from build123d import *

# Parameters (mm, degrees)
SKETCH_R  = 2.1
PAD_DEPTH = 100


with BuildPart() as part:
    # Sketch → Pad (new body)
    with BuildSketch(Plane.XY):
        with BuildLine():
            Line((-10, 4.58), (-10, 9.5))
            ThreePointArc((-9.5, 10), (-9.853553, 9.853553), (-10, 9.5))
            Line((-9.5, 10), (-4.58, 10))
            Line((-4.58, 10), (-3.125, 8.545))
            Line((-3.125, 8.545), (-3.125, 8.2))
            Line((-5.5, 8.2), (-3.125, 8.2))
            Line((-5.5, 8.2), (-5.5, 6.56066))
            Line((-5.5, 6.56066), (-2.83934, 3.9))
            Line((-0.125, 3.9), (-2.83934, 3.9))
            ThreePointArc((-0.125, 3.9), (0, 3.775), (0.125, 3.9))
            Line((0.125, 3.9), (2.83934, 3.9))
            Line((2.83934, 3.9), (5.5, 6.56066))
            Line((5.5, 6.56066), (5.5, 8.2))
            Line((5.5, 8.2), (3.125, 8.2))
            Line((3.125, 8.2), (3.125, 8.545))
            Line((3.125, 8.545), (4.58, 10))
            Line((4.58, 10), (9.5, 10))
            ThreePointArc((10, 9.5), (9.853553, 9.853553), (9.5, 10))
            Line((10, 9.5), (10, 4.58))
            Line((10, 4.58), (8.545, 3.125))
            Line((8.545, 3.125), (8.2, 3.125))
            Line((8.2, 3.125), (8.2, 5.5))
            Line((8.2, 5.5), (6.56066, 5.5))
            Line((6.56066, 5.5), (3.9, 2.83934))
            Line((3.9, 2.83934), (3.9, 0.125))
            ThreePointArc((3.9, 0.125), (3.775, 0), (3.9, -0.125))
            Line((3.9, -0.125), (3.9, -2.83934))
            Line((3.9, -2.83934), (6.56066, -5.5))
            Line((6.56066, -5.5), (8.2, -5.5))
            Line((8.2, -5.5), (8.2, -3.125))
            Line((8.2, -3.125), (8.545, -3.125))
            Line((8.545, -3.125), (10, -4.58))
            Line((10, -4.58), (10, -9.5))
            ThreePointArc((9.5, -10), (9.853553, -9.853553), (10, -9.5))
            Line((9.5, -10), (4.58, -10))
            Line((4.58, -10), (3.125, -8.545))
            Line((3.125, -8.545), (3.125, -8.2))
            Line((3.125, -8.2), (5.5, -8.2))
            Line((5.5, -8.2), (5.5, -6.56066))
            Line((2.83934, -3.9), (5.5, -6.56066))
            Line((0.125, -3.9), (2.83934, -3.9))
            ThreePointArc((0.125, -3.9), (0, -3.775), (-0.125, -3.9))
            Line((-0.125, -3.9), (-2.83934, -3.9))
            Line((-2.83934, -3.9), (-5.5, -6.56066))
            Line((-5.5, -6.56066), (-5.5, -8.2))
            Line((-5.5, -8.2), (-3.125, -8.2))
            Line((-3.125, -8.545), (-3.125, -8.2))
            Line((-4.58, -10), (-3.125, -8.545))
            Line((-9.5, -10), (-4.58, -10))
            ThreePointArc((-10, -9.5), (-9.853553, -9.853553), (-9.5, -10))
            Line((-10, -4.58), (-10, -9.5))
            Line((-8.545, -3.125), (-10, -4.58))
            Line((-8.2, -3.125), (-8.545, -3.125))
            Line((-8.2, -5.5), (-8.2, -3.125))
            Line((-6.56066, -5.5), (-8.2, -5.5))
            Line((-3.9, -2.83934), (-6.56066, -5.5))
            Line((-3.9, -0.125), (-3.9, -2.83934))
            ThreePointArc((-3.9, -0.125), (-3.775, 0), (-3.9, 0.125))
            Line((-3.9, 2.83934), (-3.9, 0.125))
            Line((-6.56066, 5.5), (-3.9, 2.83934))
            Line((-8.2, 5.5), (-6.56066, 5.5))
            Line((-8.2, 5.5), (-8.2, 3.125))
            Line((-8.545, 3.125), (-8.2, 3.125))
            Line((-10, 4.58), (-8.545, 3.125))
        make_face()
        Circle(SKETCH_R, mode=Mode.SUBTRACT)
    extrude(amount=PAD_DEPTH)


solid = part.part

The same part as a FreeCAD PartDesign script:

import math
import FreeCAD as App
import Part
import Sketcher

V = App.Vector

doc = App.newDocument("Part")
params = doc.addObject("Spreadsheet::Sheet", "Params")
for row, (alias, value) in enumerate([
    ("sketch1_diameter", "4.2 mm"),
    ("sketch1_radius", "0.500001 mm"),
    ("sketch1_width", "4.92 mm"),
    ("pad1_length", "100 mm"),
], start=1):
    params.set(f"A{row}", alias)
    params.set(f"B{row}", "=" + value)
    params.setAlias(f"B{row}", alias)

body = doc.addObject("PartDesign::Body", "Body")

# Sketch on XY plane
sketch1 = body.newObject("Sketcher::SketchObject", "Sketch")
sketch1.AttachmentSupport = (doc.getObject("XY_Plane"), [""])
sketch1.MapMode = "FlatFace"
sketch1.addGeometry([
    Part.LineSegment(V(-10, 9.5, 0), V(-10, 4.58, 0)),  # 0
    Part.LineSegment(V(-10, 4.58, 0), V(-8.545, 3.125, 0)),  # 1
    Part.LineSegment(V(-8.545, 3.125, 0), V(-8.2, 3.125, 0)),  # 2
    Part.LineSegment(V(-8.2, 3.125, 0), V(-8.2, 5.5, 0)),  # 3
    Part.LineSegment(V(-8.2, 5.5, 0), V(-6.56066, 5.5, 0)),  # 4
    Part.LineSegment(V(-6.56066, 5.5, 0), V(-3.9, 2.83934, 0)),  # 5
    Part.LineSegment(V(-3.9, 2.83934, 0), V(-3.9, 0.125, 0)),  # 6
    Part.ArcOfCircle(Part.Circle(V(-3.9, 0, 0), V(0, 0, 1), 0.125), math.radians(-90), math.radians(90)),  # 7
    Part.LineSegment(V(-3.9, -0.125, 0), V(-3.9, -2.83934, 0)),  # 8
    Part.LineSegment(V(-3.9, -2.83934, 0), V(-6.56066, -5.5, 0)),  # 9
    Part.LineSegment(V(-6.56066, -5.5, 0), V(-8.2, -5.5, 0)),  # 10
    Part.LineSegment(V(-8.2, -5.5, 0), V(-8.2, -3.125, 0)),  # 11
    Part.LineSegment(V(-8.2, -3.125, 0), V(-8.545, -3.125, 0)),  # 12
    Part.LineSegment(V(-8.545, -3.125, 0), V(-10, -4.58, 0)),  # 13
    Part.LineSegment(V(-10, -4.58, 0), V(-10, -9.5, 0)),  # 14
    Part.ArcOfCircle(Part.Circle(V(-9.499999, -9.499999, 0), V(0, 0, 1), 0.500001), math.radians(-179.999847), math.radians(-90.000153)),  # 15
    Part.LineSegment(V(-9.5, -10, 0), V(-4.58, -10, 0)),  # 16
    Part.LineSegment(V(-4.58, -10, 0), V(-3.125, -8.545, 0)),  # 17
    Part.LineSegment(V(-3.125, -8.545, 0), V(-3.125, -8.2, 0)),  # 18
    Part.LineSegment(V(-3.125, -8.2, 0), V(-5.5, -8.2, 0)),  # 19
    Part.LineSegment(V(-5.5, -8.2, 0), V(-5.5, -6.56066, 0)),  # 20
    Part.LineSegment(V(-5.5, -6.56066, 0), V(-2.83934, -3.9, 0)),  # 21
    Part.LineSegment(V(-2.83934, -3.9, 0), V(-0.125, -3.9, 0)),  # 22
    Part.ArcOfCircle(Part.Circle(V(0, -3.9, 0), V(0, 0, 1), 0.125), math.radians(0), math.radians(180)),  # 23
    Part.LineSegment(V(0.125, -3.9, 0), V(2.83934, -3.9, 0)),  # 24
    Part.LineSegment(V(2.83934, -3.9, 0), V(5.5, -6.56066, 0)),  # 25
    Part.LineSegment(V(5.5, -6.56066, 0), V(5.5, -8.2, 0)),  # 26
    Part.LineSegment(V(5.5, -8.2, 0), V(3.125, -8.2, 0)),  # 27
    Part.LineSegment(V(3.125, -8.2, 0), V(3.125, -8.545, 0)),  # 28
    Part.LineSegment(V(3.125, -8.545, 0), V(4.58, -10, 0)),  # 29
    Part.LineSegment(V(4.58, -10, 0), V(9.5, -10, 0)),  # 30
    Part.ArcOfCircle(Part.Circle(V(9.499999, -9.499999, 0), V(0, 0, 1), 0.500001), math.radians(-89.999847), math.radians(-0.000153)),  # 31
    Part.LineSegment(V(10, -9.5, 0), V(10, -4.58, 0)),  # 32
    Part.LineSegment(V(10, -4.58, 0), V(8.545, -3.125, 0)),  # 33
    Part.LineSegment(V(8.545, -3.125, 0), V(8.2, -3.125, 0)),  # 34
    Part.LineSegment(V(8.2, -3.125, 0), V(8.2, -5.5, 0)),  # 35
    Part.LineSegment(V(8.2, -5.5, 0), V(6.56066, -5.5, 0)),  # 36
    Part.LineSegment(V(6.56066, -5.5, 0), V(3.9, -2.83934, 0)),  # 37
    Part.LineSegment(V(3.9, -2.83934, 0), V(3.9, -0.125, 0)),  # 38
    Part.ArcOfCircle(Part.Circle(V(3.9, 0, 0), V(0, 0, 1), 0.125), math.radians(90), math.radians(270)),  # 39
    Part.LineSegment(V(3.9, 0.125, 0), V(3.9, 2.83934, 0)),  # 40
    Part.LineSegment(V(3.9, 2.83934, 0), V(6.56066, 5.5, 0)),  # 41
    Part.LineSegment(V(6.56066, 5.5, 0), V(8.2, 5.5, 0)),  # 42
    Part.LineSegment(V(8.2, 5.5, 0), V(8.2, 3.125, 0)),  # 43
    Part.LineSegment(V(8.2, 3.125, 0), V(8.545, 3.125, 0)),  # 44
    Part.LineSegment(V(8.545, 3.125, 0), V(10, 4.58, 0)),  # 45
    Part.LineSegment(V(10, 4.58, 0), V(10, 9.5, 0)),  # 46
    Part.ArcOfCircle(Part.Circle(V(9.499999, 9.499999, 0), V(0, 0, 1), 0.500001), math.radians(0.000153), math.radians(89.999847)),  # 47
    Part.LineSegment(V(9.5, 10, 0), V(4.58, 10, 0)),  # 48
    Part.LineSegment(V(4.58, 10, 0), V(3.125, 8.545, 0)),  # 49
    Part.LineSegment(V(3.125, 8.545, 0), V(3.125, 8.2, 0)),  # 50
    Part.LineSegment(V(3.125, 8.2, 0), V(5.5, 8.2, 0)),  # 51
    Part.LineSegment(V(5.5, 8.2, 0), V(5.5, 6.56066, 0)),  # 52
    Part.LineSegment(V(5.5, 6.56066, 0), V(2.83934, 3.9, 0)),  # 53
    Part.LineSegment(V(2.83934, 3.9, 0), V(0.125, 3.9, 0)),  # 54
    Part.ArcOfCircle(Part.Circle(V(0, 3.9, 0), V(0, 0, 1), 0.125), math.radians(180), math.radians(360)),  # 55
    Part.LineSegment(V(-0.125, 3.9, 0), V(-2.83934, 3.9, 0)),  # 56
    Part.LineSegment(V(-2.83934, 3.9, 0), V(-5.5, 6.56066, 0)),  # 57
    Part.LineSegment(V(-5.5, 6.56066, 0), V(-5.5, 8.2, 0)),  # 58
    Part.LineSegment(V(-5.5, 8.2, 0), V(-3.125, 8.2, 0)),  # 59
    Part.LineSegment(V(-3.125, 8.2, 0), V(-3.125, 8.545, 0)),  # 60
    Part.LineSegment(V(-3.125, 8.545, 0), V(-4.58, 10, 0)),  # 61
    Part.LineSegment(V(-4.58, 10, 0), V(-9.5, 10, 0)),  # 62
    Part.ArcOfCircle(Part.Circle(V(-9.499999, 9.499999, 0), V(0, 0, 1), 0.500001), math.radians(90.000153), math.radians(179.999847)),  # 63
    Part.Circle(V(0, 0, 0), V(0, 0, 1), 2.1),  # 64
], False)
sketch1.addConstraint([
    Sketcher.Constraint("Coincident", 0, 2, 1, 1),
    Sketcher.Constraint("Coincident", 1, 2, 2, 1),
    Sketcher.Constraint("Coincident", 2, 2, 3, 1),
    Sketcher.Constraint("Coincident", 3, 2, 4, 1),
    Sketcher.Constraint("Coincident", 4, 2, 5, 1),
    Sketcher.Constraint("Coincident", 5, 2, 6, 1),
    Sketcher.Constraint("Coincident", 6, 2, 7, 2),
    Sketcher.Constraint("Coincident", 7, 1, 8, 1),
    Sketcher.Constraint("Coincident", 8, 2, 9, 1),
    Sketcher.Constraint("Coincident", 9, 2, 10, 1),
    Sketcher.Constraint("Coincident", 10, 2, 11, 1),
    Sketcher.Constraint("Coincident", 11, 2, 12, 1),
    Sketcher.Constraint("Coincident", 12, 2, 13, 1),
    Sketcher.Constraint("Coincident", 13, 2, 14, 1),
    Sketcher.Constraint("Coincident", 14, 2, 15, 1),
    Sketcher.Constraint("Coincident", 15, 2, 16, 1),
    Sketcher.Constraint("Coincident", 16, 2, 17, 1),
    Sketcher.Constraint("Coincident", 17, 2, 18, 1),
    Sketcher.Constraint("Coincident", 18, 2, 19, 1),
    Sketcher.Constraint("Coincident", 19, 2, 20, 1),
    Sketcher.Constraint("Coincident", 20, 2, 21, 1),
    Sketcher.Constraint("Coincident", 21, 2, 22, 1),
    Sketcher.Constraint("Coincident", 22, 2, 23, 2),
    Sketcher.Constraint("Coincident", 23, 1, 24, 1),
    Sketcher.Constraint("Coincident", 24, 2, 25, 1),
    Sketcher.Constraint("Coincident", 25, 2, 26, 1),
    Sketcher.Constraint("Coincident", 26, 2, 27, 1),
    Sketcher.Constraint("Coincident", 27, 2, 28, 1),
    Sketcher.Constraint("Coincident", 28, 2, 29, 1),
    Sketcher.Constraint("Coincident", 29, 2, 30, 1),
    Sketcher.Constraint("Coincident", 30, 2, 31, 1),
    Sketcher.Constraint("Coincident", 31, 2, 32, 1),
    Sketcher.Constraint("Coincident", 32, 2, 33, 1),
    Sketcher.Constraint("Coincident", 33, 2, 34, 1),
    Sketcher.Constraint("Coincident", 34, 2, 35, 1),
    Sketcher.Constraint("Coincident", 35, 2, 36, 1),
    Sketcher.Constraint("Coincident", 36, 2, 37, 1),
    Sketcher.Constraint("Coincident", 37, 2, 38, 1),
    Sketcher.Constraint("Coincident", 38, 2, 39, 2),
    Sketcher.Constraint("Coincident", 39, 1, 40, 1),
    Sketcher.Constraint("Coincident", 40, 2, 41, 1),
    Sketcher.Constraint("Coincident", 41, 2, 42, 1),
    Sketcher.Constraint("Coincident", 42, 2, 43, 1),
    Sketcher.Constraint("Coincident", 43, 2, 44, 1),
    Sketcher.Constraint("Coincident", 44, 2, 45, 1),
    Sketcher.Constraint("Coincident", 45, 2, 46, 1),
    Sketcher.Constraint("Coincident", 46, 2, 47, 1),
    Sketcher.Constraint("Coincident", 47, 2, 48, 1),
    Sketcher.Constraint("Coincident", 48, 2, 49, 1),
    Sketcher.Constraint("Coincident", 49, 2, 50, 1),
    Sketcher.Constraint("Coincident", 50, 2, 51, 1),
    Sketcher.Constraint("Coincident", 51, 2, 52, 1),
    Sketcher.Constraint("Coincident", 52, 2, 53, 1),
    Sketcher.Constraint("Coincident", 53, 2, 54, 1),
    Sketcher.Constraint("Coincident", 54, 2, 55, 2),
    Sketcher.Constraint("Coincident", 55, 1, 56, 1),
    Sketcher.Constraint("Coincident", 56, 2, 57, 1),
    Sketcher.Constraint("Coincident", 57, 2, 58, 1),
    Sketcher.Constraint("Coincident", 58, 2, 59, 1),
    Sketcher.Constraint("Coincident", 59, 2, 60, 1),
    Sketcher.Constraint("Coincident", 60, 2, 61, 1),
    Sketcher.Constraint("Coincident", 61, 2, 62, 1),
    Sketcher.Constraint("Coincident", 62, 2, 63, 1),
    Sketcher.Constraint("Coincident", 63, 2, 0, 1),
    Sketcher.Constraint("Vertical", 0),
    Sketcher.Constraint("Horizontal", 2),
    Sketcher.Constraint("Vertical", 3),
    Sketcher.Constraint("Horizontal", 4),
    Sketcher.Constraint("Vertical", 6),
    Sketcher.Constraint("Vertical", 8),
    Sketcher.Constraint("Horizontal", 10),
    Sketcher.Constraint("Vertical", 11),
    Sketcher.Constraint("Horizontal", 12),
    Sketcher.Constraint("Vertical", 14),
    Sketcher.Constraint("Horizontal", 16),
    Sketcher.Constraint("Vertical", 18),
    Sketcher.Constraint("Horizontal", 19),
    Sketcher.Constraint("Vertical", 20),
    Sketcher.Constraint("Horizontal", 22),
    Sketcher.Constraint("Horizontal", 24),
    Sketcher.Constraint("Vertical", 26),
    Sketcher.Constraint("Horizontal", 27),
    Sketcher.Constraint("Vertical", 28),
    Sketcher.Constraint("Horizontal", 30),
    Sketcher.Constraint("Vertical", 32),
    Sketcher.Constraint("Horizontal", 34),
    Sketcher.Constraint("Vertical", 35),
    Sketcher.Constraint("Horizontal", 36),
    Sketcher.Constraint("Vertical", 38),
    Sketcher.Constraint("Vertical", 40),
    Sketcher.Constraint("Horizontal", 42),
    Sketcher.Constraint("Vertical", 43),
    Sketcher.Constraint("Horizontal", 44),
    Sketcher.Constraint("Vertical", 46),
    Sketcher.Constraint("Horizontal", 48),
    Sketcher.Constraint("Vertical", 50),
    Sketcher.Constraint("Horizontal", 51),
    Sketcher.Constraint("Vertical", 52),
    Sketcher.Constraint("Horizontal", 54),
    Sketcher.Constraint("Horizontal", 56),
    Sketcher.Constraint("Vertical", 58),
    Sketcher.Constraint("Horizontal", 59),
    Sketcher.Constraint("Vertical", 60),
    Sketcher.Constraint("Horizontal", 62),
    Sketcher.Constraint("Coincident", 64, 3, -1, 1),
    Sketcher.Constraint("Equal", 7, 23),
    Sketcher.Constraint("Equal", 15, 31),
    Sketcher.Constraint("Equal", 23, 39),
    Sketcher.Constraint("Equal", 31, 47),
    Sketcher.Constraint("Equal", 39, 55),
    Sketcher.Constraint("Equal", 47, 63),
    Sketcher.Constraint("Symmetric", 7, 3, 39, 3, -1, 1),
    Sketcher.Constraint("Symmetric", 15, 3, 47, 3, -1, 1),
    Sketcher.Constraint("Symmetric", 23, 3, 55, 3, -1, 1),
    Sketcher.Constraint("Symmetric", 31, 3, 63, 3, -1, 1),
    Sketcher.Constraint("Symmetric", 1, 2, 33, 2, -1, 1),
    Sketcher.Constraint("Symmetric", 3, 2, 35, 2, -1, 1),
    Sketcher.Constraint("Symmetric", 5, 2, 37, 2, -1, 1),
    Sketcher.Constraint("Symmetric", 8, 2, 40, 2, -1, 1),
    Sketcher.Constraint("Symmetric", 9, 2, 41, 2, -1, 1),
    Sketcher.Constraint("Symmetric", 11, 2, 43, 2, -1, 1),
    Sketcher.Constraint("Symmetric", 17, 2, 49, 2, -1, 1),
    Sketcher.Constraint("Symmetric", 19, 2, 51, 2, -1, 1),
    Sketcher.Constraint("Symmetric", 21, 2, 53, 2, -1, 1),
    Sketcher.Constraint("Symmetric", 24, 2, 56, 2, -1, 1),
    Sketcher.Constraint("Symmetric", 25, 2, 57, 2, -1, 1),
    Sketcher.Constraint("Symmetric", 27, 2, 59, 2, -1, 1),
    Sketcher.Constraint("Symmetric", 15, 3, 31, 3, -2),
    Sketcher.Constraint("Symmetric", 22, 2, 23, 1, -2),
    Sketcher.Constraint("Symmetric", 20, 2, 25, 2, -2),
    Sketcher.Constraint("Symmetric", 18, 2, 27, 2, -2),
    Sketcher.Constraint("Symmetric", 12, 2, 33, 2, -2),
    Sketcher.Constraint("Symmetric", 10, 2, 35, 2, -2),
    Sketcher.Constraint("Symmetric", 8, 2, 37, 2, -2),
    Sketcher.Constraint("PointOnObject", 7, 3, -1),
    Sketcher.Constraint("Parallel", 1, 5),
    Sketcher.Constraint("Perpendicular", 5, 9),
    Sketcher.Constraint("Parallel", 9, 13),
    Sketcher.Constraint("Parallel", 13, 17),
    Sketcher.Constraint("Parallel", 17, 21),
    Sketcher.Constraint("Perpendicular", 21, 25),
    Sketcher.Constraint("Parallel", 25, 29),
    Sketcher.Constraint("Parallel", 29, 33),
    Sketcher.Constraint("Parallel", 33, 37),
    Sketcher.Constraint("Parallel", 41, 45),
    Sketcher.Constraint("Parallel", 45, 49),
    Sketcher.Constraint("Parallel", 49, 53),
    Sketcher.Constraint("Parallel", 57, 61),
    Sketcher.Constraint("Horizontal", 31, 3, 14, 2),
    Sketcher.Constraint("Horizontal", 23, 3, 21, 2),
    Sketcher.Constraint("Horizontal", 17, 2, 28, 2),
    Sketcher.Constraint("Horizontal", 14, 2, 31, 2),
    Sketcher.Constraint("Horizontal", 13, 2, 32, 2),
    Sketcher.Constraint("Horizontal", 0, 2, 45, 2),
    Sketcher.Constraint("Horizontal", 63, 3, 46, 2),
    Sketcher.Constraint("Horizontal", 49, 2, 60, 2),
    Sketcher.Constraint("Horizontal", 46, 2, 63, 2),
    Sketcher.Constraint("Vertical", 7, 3, 5, 2),
    Sketcher.Constraint("Vertical", 63, 3, 15, 2),
    Sketcher.Constraint("Vertical", 47, 3, 30, 2),
    Sketcher.Constraint("Vertical", 30, 2, 47, 2),
    Sketcher.Constraint("Vertical", 15, 2, 62, 2),
    Sketcher.Constraint("Equal", 62, 0),
    Sketcher.Constraint("Equal", 59, 3),
    Sketcher.Constraint("Equal", 56, 6),
    Sketcher.Constraint("Equal", 44, 18),
    Sketcher.Constraint("Equal", 42, 20),
    Sketcher.Constraint("Equal", 13, 17),
    Sketcher.Constraint("Equal", 9, 21),
    Sketcher.Constraint("Diameter", 64, 4.2),
    Sketcher.Constraint("Radius", 15, 0.500001),
    Sketcher.Constraint("DistanceX", 0, 2, -1, 1, 10.0),
    Sketcher.Constraint("Radius", 7, 0.125),
    Sketcher.Constraint("DistanceX", 16, 1, 16, 2, 4.92),
    Sketcher.Constraint("DistanceX", 7, 3, -1, 1, 3.9),
    Sketcher.Constraint("DistanceX", 2, 2, -1, 1, 8.2),
    Sketcher.Constraint("DistanceY", -1, 1, 3, 2, 5.5),
    Sketcher.Constraint("DistanceX", 2, 1, 2, 2, 0.345),
    Sketcher.Constraint("DistanceX", 4, 1, 4, 2, 1.63934),
])
sketch1.setExpression("Constraints[169]", "Params.sketch1_diameter")
sketch1.setExpression("Constraints[170]", "Params.sketch1_radius")
sketch1.setExpression("Constraints[173]", "Params.sketch1_width")
pad1 = body.newObject("PartDesign::Pad", "Pad")
pad1.Profile = sketch1
pad1.setExpression("Length", "Params.pad1_length")

doc.recompute()
